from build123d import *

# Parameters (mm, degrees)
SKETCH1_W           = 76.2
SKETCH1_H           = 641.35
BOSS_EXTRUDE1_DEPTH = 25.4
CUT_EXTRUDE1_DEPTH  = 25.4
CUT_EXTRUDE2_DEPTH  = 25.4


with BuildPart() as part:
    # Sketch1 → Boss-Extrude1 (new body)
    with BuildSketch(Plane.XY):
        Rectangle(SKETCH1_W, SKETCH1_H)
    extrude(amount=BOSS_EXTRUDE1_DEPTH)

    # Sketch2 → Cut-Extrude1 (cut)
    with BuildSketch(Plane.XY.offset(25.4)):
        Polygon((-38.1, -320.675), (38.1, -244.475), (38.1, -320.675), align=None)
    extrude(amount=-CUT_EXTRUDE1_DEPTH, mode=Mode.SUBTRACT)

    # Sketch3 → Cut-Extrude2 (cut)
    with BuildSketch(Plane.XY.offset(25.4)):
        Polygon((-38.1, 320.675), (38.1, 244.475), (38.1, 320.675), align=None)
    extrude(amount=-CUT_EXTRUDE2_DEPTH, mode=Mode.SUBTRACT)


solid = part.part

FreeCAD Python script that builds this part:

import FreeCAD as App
import Part
import Sketcher

V = App.Vector
Q = App.Units.Quantity

doc = App.newDocument("Part")
body = doc.addObject("PartDesign::Body", "Body")

# Sketch on XY plane
sketch1 = doc.addObject("Sketcher::SketchObject", "Sketch")
body.addObject(sketch1)
sketch1.AttachmentSupport = (doc.XY_Plane, [""])
sketch1.MapMode = "FlatFace"
sketch1.addGeometry(Part.LineSegment(V(-38, 321, 0), V(-38, -321, 0)), False)
sketch1.addGeometry(Part.LineSegment(V(-38, -321, 0), V(38, -321, 0)), False)
sketch1.addGeometry(Part.LineSegment(V(38, -321, 0), V(38, 321, 0)), False)
sketch1.addGeometry(Part.LineSegment(V(38, 321, 0), V(-38, 321, 0)), False)
sketch1.addConstraint(Sketcher.Constraint("Coincident", 0, 2, 1, 1))
sketch1.addConstraint(Sketcher.Constraint("Coincident", 1, 2, 2, 1))
sketch1.addConstraint(Sketcher.Constraint("Coincident", 2, 2, 3, 1))
sketch1.addConstraint(Sketcher.Constraint("Coincident", 3, 2, 0, 1))
sketch1.addConstraint(Sketcher.Constraint("Vertical", 0))
sketch1.addConstraint(Sketcher.Constraint("Horizontal", 1))
sketch1.addConstraint(Sketcher.Constraint("Vertical", 2))
sketch1.addConstraint(Sketcher.Constraint("Horizontal", 3))
sketch1.addConstraint(Sketcher.Constraint("Symmetric", 0, 2, 2, 2, -1, 1))
sketch1.addConstraint(Sketcher.Constraint("DistanceX", 1, 1, 1, 2, Q("3 in")))
sketch1.addConstraint(Sketcher.Constraint("DistanceY", 0, 2, 0, 1, Q("25.25 in")))
pad1 = doc.addObject("PartDesign::Pad", "Pad")
body.addObject(pad1)
pad1.Profile = sketch1
pad1.Length = Q("1 in")

# Sketch on XY plane
sketch2 = doc.addObject("Sketcher::SketchObject", "Sketch001")
body.addObject(sketch2)
sketch2.AttachmentSupport = (doc.XY_Plane, [""])
sketch2.MapMode = "FlatFace"
sketch2.AttachmentOffset = App.Placement(V(0, 0, 1 * 25.4), App.Rotation())
sketch2.addGeometry(Part.LineSegment(V(38, -244, 0), V(-38, -321, 0)), False)
sketch2.addGeometry(Part.LineSegment(V(-38, -321, 0), V(38, -321, 0)), False)
sketch2.addGeometry(Part.LineSegment(V(38, -321, 0), V(38, -244, 0)), False)
sketch2.addConstraint(Sketcher.Constraint("Coincident", 0, 2, 1, 1))
sketch2.addConstraint(Sketcher.Constraint("Coincident", 1, 2, 2, 1))
sketch2.addConstraint(Sketcher.Constraint("Coincident", 2, 2, 0, 1))
sketch2.addConstraint(Sketcher.Constraint("Horizontal", 1))
sketch2.addConstraint(Sketcher.Constraint("Vertical", 2))
sketch2.addConstraint(Sketcher.Constraint("Equal", 1, 2))
sketch2.addConstraint(Sketcher.Constraint("DistanceX", 1, 1, 1, 2, Q("3 in")))
sketch2.addConstraint(Sketcher.Constraint("DistanceX", 0, 2, -1, 1, Q("1.5 in")))
sketch2.addConstraint(Sketcher.Constraint("DistanceY", 0, 2, -1, 1, Q("12.625 in")))
pocket1 = doc.addObject("PartDesign::Pocket", "Pocket")
body.addObject(pocket1)
pocket1.Profile = sketch2
pocket1.Length = Q("1 in")

# Sketch on XY plane
sketch3 = doc.addObject("Sketcher::SketchObject", "Sketch002")
body.addObject(sketch3)
sketch3.AttachmentSupport = (doc.XY_Plane, [""])
sketch3.MapMode = "FlatFace"
sketch3.AttachmentOffset = App.Placement(V(0, 0, 1 * 25.4), App.Rotation())
sketch3.addGeometry(Part.LineSegment(V(-38, 321, 0), V(38, 244, 0)), False)
sketch3.addGeometry(Part.LineSegment(V(38, 244, 0), V(38, 321, 0)), False)
sketch3.addGeometry(Part.LineSegment(V(38, 321, 0), V(-38, 321, 0)), False)
sketch3.addConstraint(Sketcher.Constraint("Coincident", 0, 2, 1, 1))
sketch3.addConstraint(Sketcher.Constraint("Coincident", 1, 2, 2, 1))
sketch3.addConstraint(Sketcher.Constraint("Coincident", 2, 2, 0, 1))
sketch3.addConstraint(Sketcher.Constraint("Vertical", 1))
sketch3.addConstraint(Sketcher.Constraint("Horizontal", 2))
sketch3.addConstraint(Sketcher.Constraint("Equal", 2, 1))
sketch3.addConstraint(Sketcher.Constraint("DistanceX", 2, 2, 2, 1, Q("3 in")))
sketch3.addConstraint(Sketcher.Constraint("DistanceX", -1, 1, 0, 2, Q("1.5 in")))
sketch3.addConstraint(Sketcher.Constraint("DistanceY", -1, 1, 0, 2, Q("9.625 in")))
pocket2 = doc.addObject("PartDesign::Pocket", "Pocket001")
body.addObject(pocket2)
pocket2.Profile = sketch3
pocket2.Length = Q("1 in")

doc.recompute()
